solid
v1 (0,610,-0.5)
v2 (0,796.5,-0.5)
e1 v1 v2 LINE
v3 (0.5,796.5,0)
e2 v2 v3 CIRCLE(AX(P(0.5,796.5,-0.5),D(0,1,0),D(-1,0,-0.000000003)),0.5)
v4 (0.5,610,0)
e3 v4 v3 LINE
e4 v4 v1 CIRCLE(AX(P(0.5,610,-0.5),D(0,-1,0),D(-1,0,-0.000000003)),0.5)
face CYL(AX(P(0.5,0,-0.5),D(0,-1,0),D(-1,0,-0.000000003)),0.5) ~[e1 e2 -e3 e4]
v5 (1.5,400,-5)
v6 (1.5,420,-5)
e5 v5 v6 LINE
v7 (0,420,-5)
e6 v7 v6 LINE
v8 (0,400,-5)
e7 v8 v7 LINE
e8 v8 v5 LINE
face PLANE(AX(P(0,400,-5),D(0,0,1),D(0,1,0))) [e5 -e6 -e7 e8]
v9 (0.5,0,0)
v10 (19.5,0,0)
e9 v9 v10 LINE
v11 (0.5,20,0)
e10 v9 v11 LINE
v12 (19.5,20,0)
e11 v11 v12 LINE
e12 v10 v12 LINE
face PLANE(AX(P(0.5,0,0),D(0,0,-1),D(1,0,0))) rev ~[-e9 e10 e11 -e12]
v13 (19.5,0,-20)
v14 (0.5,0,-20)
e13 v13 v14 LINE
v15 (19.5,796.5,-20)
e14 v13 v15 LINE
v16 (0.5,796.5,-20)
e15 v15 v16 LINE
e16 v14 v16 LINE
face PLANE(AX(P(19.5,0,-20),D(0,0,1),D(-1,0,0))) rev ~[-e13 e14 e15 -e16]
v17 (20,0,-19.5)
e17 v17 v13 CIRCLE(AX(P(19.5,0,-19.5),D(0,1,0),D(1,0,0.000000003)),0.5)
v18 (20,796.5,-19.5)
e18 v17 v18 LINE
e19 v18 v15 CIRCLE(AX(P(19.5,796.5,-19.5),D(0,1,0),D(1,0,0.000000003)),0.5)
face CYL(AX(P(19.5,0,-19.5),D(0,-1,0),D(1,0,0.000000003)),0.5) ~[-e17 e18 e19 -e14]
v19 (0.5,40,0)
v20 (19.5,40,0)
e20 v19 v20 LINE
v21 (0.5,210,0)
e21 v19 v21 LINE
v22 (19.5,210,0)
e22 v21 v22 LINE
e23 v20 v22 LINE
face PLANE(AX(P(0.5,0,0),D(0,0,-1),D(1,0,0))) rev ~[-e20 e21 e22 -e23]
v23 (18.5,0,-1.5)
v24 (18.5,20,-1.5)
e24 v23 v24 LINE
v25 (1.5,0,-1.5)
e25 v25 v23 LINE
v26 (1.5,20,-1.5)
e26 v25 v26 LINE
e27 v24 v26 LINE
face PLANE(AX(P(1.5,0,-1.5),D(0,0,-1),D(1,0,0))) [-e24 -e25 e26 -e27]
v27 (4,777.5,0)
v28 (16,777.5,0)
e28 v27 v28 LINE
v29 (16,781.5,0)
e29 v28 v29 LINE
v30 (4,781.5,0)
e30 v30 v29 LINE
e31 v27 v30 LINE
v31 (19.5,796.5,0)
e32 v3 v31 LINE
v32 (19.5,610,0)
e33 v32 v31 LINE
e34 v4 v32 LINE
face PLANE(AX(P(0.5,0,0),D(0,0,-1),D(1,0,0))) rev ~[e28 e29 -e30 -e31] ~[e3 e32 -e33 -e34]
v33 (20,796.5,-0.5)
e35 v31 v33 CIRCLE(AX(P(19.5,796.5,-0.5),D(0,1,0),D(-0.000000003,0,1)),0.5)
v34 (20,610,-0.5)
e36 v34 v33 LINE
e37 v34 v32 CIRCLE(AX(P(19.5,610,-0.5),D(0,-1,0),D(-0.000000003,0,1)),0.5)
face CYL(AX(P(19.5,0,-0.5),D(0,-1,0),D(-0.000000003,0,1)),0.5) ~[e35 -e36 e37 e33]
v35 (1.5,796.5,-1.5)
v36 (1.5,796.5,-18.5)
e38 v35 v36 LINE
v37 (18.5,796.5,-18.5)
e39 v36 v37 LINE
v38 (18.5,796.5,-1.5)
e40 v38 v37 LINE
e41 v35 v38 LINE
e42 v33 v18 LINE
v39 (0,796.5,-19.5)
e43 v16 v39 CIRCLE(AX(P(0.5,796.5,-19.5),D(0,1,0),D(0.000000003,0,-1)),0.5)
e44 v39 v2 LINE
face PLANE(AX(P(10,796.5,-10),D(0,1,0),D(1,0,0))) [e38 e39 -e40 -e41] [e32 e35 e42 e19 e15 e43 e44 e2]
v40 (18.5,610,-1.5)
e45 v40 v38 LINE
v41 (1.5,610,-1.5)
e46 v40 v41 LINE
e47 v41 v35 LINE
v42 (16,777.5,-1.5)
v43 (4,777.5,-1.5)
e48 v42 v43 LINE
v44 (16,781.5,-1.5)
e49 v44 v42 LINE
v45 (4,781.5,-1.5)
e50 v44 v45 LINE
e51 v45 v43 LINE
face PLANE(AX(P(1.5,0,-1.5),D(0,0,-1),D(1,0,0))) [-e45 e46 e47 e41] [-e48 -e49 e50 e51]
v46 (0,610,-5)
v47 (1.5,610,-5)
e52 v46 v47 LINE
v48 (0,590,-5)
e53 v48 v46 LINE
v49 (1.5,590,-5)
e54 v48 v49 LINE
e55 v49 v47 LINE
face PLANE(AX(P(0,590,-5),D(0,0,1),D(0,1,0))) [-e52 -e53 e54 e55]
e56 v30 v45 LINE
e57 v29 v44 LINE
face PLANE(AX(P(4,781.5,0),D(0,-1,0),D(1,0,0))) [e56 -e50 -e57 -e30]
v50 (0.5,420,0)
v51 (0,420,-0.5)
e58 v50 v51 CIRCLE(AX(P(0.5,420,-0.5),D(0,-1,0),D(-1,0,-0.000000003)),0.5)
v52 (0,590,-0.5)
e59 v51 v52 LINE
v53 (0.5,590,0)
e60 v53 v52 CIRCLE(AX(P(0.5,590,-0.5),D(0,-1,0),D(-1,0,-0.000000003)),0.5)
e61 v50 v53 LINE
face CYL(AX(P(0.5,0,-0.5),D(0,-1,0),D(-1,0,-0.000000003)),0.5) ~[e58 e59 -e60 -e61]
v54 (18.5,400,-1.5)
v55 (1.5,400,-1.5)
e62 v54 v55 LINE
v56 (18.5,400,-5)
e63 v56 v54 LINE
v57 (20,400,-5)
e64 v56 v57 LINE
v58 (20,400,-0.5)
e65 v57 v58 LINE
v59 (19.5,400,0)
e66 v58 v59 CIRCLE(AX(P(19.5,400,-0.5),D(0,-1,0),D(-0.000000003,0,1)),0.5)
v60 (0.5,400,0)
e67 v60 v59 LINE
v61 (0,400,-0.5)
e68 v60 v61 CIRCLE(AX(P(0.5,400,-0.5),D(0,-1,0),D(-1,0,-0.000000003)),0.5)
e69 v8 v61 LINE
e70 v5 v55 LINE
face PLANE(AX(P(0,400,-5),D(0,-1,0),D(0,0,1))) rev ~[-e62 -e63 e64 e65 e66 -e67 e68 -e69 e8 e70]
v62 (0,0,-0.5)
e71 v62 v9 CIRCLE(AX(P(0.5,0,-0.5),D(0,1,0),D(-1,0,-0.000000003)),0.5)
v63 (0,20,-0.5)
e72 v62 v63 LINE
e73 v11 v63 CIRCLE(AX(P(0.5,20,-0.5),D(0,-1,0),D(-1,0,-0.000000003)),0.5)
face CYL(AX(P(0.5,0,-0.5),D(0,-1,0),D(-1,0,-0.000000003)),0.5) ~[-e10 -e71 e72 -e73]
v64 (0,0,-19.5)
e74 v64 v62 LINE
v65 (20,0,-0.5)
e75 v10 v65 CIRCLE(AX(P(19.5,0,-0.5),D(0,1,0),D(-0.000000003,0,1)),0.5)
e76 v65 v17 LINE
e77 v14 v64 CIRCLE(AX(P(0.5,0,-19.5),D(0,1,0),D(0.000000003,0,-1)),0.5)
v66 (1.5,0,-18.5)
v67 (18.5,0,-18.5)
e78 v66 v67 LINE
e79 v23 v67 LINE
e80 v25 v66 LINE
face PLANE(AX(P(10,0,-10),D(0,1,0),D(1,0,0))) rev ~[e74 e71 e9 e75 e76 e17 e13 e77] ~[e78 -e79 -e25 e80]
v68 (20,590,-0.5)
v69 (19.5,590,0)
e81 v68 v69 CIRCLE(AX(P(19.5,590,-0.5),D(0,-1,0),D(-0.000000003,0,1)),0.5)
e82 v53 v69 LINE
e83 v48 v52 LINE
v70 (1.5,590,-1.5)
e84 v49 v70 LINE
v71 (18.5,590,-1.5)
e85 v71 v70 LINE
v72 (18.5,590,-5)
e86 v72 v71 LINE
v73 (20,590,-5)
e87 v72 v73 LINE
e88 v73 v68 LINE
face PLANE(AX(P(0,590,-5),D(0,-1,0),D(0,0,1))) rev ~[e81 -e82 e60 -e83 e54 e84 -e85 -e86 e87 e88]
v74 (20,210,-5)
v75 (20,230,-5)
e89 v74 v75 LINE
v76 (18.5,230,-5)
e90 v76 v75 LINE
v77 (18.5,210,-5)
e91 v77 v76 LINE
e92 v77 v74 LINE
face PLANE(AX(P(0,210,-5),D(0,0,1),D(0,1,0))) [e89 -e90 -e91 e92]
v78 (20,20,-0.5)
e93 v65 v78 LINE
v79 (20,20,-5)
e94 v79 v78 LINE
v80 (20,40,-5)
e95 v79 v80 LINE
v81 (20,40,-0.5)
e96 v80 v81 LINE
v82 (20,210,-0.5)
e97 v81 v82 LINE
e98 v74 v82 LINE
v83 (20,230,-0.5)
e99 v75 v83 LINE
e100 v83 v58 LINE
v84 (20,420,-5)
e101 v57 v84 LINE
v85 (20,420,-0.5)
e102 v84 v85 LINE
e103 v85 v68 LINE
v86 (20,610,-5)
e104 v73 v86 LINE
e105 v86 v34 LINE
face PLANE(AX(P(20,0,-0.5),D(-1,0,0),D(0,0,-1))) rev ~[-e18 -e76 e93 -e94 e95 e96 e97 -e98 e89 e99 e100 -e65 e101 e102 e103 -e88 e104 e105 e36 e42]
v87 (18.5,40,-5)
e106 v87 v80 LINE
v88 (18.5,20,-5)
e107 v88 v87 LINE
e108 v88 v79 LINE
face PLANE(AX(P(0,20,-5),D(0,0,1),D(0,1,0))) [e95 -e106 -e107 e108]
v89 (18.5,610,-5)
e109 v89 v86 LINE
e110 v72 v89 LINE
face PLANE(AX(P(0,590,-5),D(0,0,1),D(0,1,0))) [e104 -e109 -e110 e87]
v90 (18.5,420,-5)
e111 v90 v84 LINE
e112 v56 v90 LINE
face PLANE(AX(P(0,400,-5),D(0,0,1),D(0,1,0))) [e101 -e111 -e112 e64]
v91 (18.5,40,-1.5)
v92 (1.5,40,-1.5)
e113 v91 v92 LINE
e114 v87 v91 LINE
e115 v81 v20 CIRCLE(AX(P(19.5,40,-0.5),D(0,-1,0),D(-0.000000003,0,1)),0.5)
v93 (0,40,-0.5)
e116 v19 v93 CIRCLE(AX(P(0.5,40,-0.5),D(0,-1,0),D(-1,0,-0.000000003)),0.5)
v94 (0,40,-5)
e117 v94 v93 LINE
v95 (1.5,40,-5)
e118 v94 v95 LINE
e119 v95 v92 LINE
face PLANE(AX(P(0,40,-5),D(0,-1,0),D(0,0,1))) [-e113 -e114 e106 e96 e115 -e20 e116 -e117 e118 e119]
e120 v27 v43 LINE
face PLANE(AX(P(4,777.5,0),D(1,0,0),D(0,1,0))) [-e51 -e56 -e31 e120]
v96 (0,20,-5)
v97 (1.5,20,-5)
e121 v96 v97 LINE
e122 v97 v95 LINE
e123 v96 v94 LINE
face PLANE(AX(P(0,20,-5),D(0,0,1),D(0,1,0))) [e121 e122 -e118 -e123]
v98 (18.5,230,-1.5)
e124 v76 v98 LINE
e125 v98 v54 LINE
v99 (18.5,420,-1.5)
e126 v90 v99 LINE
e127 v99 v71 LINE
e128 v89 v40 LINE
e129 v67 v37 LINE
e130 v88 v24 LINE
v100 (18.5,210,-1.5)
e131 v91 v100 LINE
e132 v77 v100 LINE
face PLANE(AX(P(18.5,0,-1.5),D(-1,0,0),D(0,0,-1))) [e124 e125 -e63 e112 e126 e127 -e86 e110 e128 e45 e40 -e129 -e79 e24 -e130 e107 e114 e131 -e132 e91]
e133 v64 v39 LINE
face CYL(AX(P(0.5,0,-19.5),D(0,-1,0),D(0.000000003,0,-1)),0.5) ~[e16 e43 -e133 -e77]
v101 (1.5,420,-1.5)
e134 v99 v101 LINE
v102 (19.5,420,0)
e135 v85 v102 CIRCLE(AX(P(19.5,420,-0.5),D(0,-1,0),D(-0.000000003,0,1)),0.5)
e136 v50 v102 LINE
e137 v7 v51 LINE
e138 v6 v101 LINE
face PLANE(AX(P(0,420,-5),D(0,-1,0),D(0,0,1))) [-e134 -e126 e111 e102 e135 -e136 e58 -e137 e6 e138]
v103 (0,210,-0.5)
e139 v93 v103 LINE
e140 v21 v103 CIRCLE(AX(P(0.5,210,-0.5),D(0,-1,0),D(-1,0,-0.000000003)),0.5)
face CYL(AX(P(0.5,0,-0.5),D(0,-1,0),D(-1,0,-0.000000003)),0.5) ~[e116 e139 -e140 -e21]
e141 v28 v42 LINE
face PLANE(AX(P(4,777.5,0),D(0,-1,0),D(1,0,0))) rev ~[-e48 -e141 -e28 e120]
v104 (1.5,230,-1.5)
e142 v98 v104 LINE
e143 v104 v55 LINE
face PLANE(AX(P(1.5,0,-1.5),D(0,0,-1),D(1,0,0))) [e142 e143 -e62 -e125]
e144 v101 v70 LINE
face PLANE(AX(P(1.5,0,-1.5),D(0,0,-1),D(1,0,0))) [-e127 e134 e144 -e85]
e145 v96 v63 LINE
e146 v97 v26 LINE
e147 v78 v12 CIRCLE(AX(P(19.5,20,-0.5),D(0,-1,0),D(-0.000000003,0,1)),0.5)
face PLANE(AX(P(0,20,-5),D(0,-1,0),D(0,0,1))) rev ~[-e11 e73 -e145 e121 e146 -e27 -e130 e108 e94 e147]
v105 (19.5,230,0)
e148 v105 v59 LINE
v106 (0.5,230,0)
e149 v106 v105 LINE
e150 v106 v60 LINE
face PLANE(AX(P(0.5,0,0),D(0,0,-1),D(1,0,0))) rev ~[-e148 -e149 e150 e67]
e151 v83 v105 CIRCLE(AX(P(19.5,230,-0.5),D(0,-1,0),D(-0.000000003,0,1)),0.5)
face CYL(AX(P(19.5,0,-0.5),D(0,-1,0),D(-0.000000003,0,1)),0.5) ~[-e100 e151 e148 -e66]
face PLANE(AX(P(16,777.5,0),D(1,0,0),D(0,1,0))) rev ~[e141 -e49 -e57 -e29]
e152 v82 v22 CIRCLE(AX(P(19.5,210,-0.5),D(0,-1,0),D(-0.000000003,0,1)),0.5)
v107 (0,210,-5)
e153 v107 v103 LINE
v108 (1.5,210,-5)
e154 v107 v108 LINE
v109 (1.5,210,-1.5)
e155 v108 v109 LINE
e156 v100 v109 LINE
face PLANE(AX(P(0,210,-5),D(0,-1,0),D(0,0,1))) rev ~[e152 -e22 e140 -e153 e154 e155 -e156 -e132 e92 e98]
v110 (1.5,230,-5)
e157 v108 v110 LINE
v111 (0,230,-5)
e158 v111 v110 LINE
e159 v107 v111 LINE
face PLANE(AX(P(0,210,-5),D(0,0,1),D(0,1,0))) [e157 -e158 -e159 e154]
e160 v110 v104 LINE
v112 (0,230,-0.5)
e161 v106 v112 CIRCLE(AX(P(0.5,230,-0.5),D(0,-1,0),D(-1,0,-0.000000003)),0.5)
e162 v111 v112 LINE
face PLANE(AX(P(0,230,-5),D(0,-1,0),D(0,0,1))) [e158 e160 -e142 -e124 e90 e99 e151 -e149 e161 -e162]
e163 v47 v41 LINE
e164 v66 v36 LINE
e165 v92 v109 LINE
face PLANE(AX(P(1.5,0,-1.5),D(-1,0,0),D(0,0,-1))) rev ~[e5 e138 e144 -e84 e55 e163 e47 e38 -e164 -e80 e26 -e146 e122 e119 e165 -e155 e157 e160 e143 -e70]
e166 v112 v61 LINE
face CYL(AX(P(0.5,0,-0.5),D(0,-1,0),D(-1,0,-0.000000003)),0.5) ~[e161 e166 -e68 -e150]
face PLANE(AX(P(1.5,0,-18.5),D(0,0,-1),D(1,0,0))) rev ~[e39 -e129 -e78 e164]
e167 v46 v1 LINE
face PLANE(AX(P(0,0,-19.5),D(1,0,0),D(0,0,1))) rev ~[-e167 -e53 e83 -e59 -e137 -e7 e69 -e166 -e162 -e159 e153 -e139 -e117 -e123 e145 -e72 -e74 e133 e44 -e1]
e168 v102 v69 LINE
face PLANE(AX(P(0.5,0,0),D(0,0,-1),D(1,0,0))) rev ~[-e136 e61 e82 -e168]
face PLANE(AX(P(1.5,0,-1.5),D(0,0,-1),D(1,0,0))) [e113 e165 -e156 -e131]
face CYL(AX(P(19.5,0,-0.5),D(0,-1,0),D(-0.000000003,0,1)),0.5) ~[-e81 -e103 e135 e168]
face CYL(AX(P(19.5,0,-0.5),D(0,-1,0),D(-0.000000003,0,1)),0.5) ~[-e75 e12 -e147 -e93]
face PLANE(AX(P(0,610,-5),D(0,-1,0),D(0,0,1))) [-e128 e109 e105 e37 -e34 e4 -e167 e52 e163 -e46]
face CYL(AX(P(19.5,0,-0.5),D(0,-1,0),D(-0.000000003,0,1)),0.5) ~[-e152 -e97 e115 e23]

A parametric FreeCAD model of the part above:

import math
import FreeCAD as App
import Part
import Sketcher
from FreeCAD import Vector
Q = App.Units.Quantity


def add_polygon(sketch, points):
    """Adds a closed chain of lines whose ends are joined by coincident constraints."""
    first, n = sketch.GeometryCount, len(points)
    for a, b in zip(points, points[1:] + points[:1]):
        sketch.addGeometry(Part.LineSegment(App.Vector(*a, 0), App.Vector(*b, 0)), False)
    for i in range(n):
        sketch.addConstraint(Sketcher.Constraint("Coincident", first + i, 2, first + (i + 1) % n, 1))

doc = App.newDocument("Part")
body = doc.addObject("PartDesign::Body", "Body")

sketch1 = body.newObject("Sketcher::SketchObject", "Sketch")
sketch1.AttachmentSupport = (doc.getObject("XZ_Plane"), [""])
sketch1.MapMode = "FlatFace"
sketch1.addGeometry(Part.LineSegment(Vector(0.5, 0, 0), Vector(19.5, 0, 0)), False)
sketch1.addGeometry(Part.ArcOfCircle(Part.Circle(Vector(19.5, -0.5, 0), Vector(0, 0, 1), 0.5), math.radians(0), math.radians(90)), False)
sketch1.addGeometry(Part.LineSegment(Vector(20, -0.5, 0), Vector(20, -19.5, 0)), False)
sketch1.addGeometry(Part.ArcOfCircle(Part.Circle(Vector(19.5, -19.5, 0), Vector(0, 0, 1), 0.5), math.radians(-90), math.radians(0)), False)
sketch1.addGeometry(Part.LineSegment(Vector(19.5, -20, 0), Vector(0.5, -20, 0)), False)
sketch1.addGeometry(Part.ArcOfCircle(Part.Circle(Vector(0.5, -19.5, 0), Vector(0, 0, 1), 0.5), math.radians(180), math.radians(270)), False)
sketch1.addGeometry(Part.LineSegment(Vector(0, -19.5, 0), Vector(0, -0.5, 0)), False)
sketch1.addGeometry(Part.ArcOfCircle(Part.Circle(Vector(0.5, -0.5, 0), Vector(0, 0, 1), 0.5), math.radians(90), math.radians(180)), False)
add_polygon(sketch1, [(18.5, -1.5), (1.5, -1.5), (1.5, -18.5), (18.5, -18.5)])
sketch1.addConstraint(Sketcher.Constraint("Tangent", 0, 2, 1, 2))
sketch1.addConstraint(Sketcher.Constraint("Tangent", 1, 1, 2, 1))
sketch1.addConstraint(Sketcher.Constraint("Tangent", 2, 2, 3, 2))
sketch1.addConstraint(Sketcher.Constraint("Tangent", 3, 1, 4, 1))
sketch1.addConstraint(Sketcher.Constraint("Tangent", 4, 2, 5, 2))
sketch1.addConstraint(Sketcher.Constraint("Tangent", 5, 1, 6, 1))
sketch1.addConstraint(Sketcher.Constraint("Tangent", 6, 2, 7, 2))
sketch1.addConstraint(Sketcher.Constraint("Tangent", 7, 1, 0, 1))
sketch1.addConstraint(Sketcher.Constraint("Horizontal", 0))
sketch1.addConstraint(Sketcher.Constraint("Vertical", 2))
sketch1.addConstraint(Sketcher.Constraint("Horizontal", 4))
sketch1.addConstraint(Sketcher.Constraint("Vertical", 6))
sketch1.addConstraint(Sketcher.Constraint("Horizontal", 8))
sketch1.addConstraint(Sketcher.Constraint("Vertical", 9))
sketch1.addConstraint(Sketcher.Constraint("Horizontal", 10))
sketch1.addConstraint(Sketcher.Constraint("Vertical", 11))
sketch1.addConstraint(Sketcher.Constraint("Equal", 1, 3))
sketch1.addConstraint(Sketcher.Constraint("Equal", 3, 5))
sketch1.addConstraint(Sketcher.Constraint("Equal", 5, 7))
sketch1.addConstraint(Sketcher.Constraint("PointOnObject", 0, 2, -1))
sketch1.addConstraint(Sketcher.Constraint("PointOnObject", 5, 1, -2))
sketch1.addConstraint(Sketcher.Constraint("Equal", 4, 2))
sketch1.addConstraint(Sketcher.Constraint("Equal", 10, 9))
sketch1.addConstraint(Sketcher.Constraint("Radius", 1, Q("0.5 mm")))
sketch1.addConstraint(Sketcher.Constraint("DistanceX", 0, 1, 0, 2, Q("19 mm")))
sketch1.addConstraint(Sketcher.Constraint("DistanceX", 8, 2, 8, 1, Q("17 mm")))
sketch1.addConstraint(Sketcher.Constraint("DistanceX", 7, 3, 8, 2, Q("1 mm")))
sketch1.addConstraint(Sketcher.Constraint("DistanceY", 8, 2, 7, 3, Q("1 mm")))
pad1 = body.newObject("PartDesign::Pad", "Pad")
pad1.Profile = sketch1
pad1.Length = 796.5
pad1.Reversed = True

sketch2 = body.newObject("Sketcher::SketchObject", "Sketch001")
sketch2.AttachmentSupport = (doc.getObject("XY_Plane"), [""])
sketch2.MapMode = "FlatFace"
add_polygon(sketch2, [(4, 781.5), (4, 777.5), (16, 777.5), (16, 781.5)])
sketch2.addConstraint(Sketcher.Constraint("Vertical", 0))
sketch2.addConstraint(Sketcher.Constraint("Horizontal", 1))
sketch2.addConstraint(Sketcher.Constraint("Vertical", 2))
sketch2.addConstraint(Sketcher.Constraint("Horizontal", 3))
sketch2.addConstraint(Sketcher.Constraint("DistanceX", 1, 1, 1, 2, Q("12 mm")))
sketch2.addConstraint(Sketcher.Constraint("DistanceY", 0, 2, 0, 1, Q("4 mm")))
sketch2.addConstraint(Sketcher.Constraint("DistanceX", -1, 1, 0, 2, Q("4 mm")))
sketch2.addConstraint(Sketcher.Constraint("DistanceY", -1, 1, 0, 2, Q("777.5 mm")))
pocket1 = body.newObject("PartDesign::Pocket", "Pocket")
pocket1.Profile = sketch2
pocket1.Length = 10

sketch3 = body.newObject("Sketcher::SketchObject", "Sketch002")
sketch3.AttachmentSupport = (doc.getObject("YZ_Plane"), [""])
sketch3.MapMode = "FlatFace"
add_polygon(sketch3, [(610, -5), (590, -5), (590, 0), (610, 0)])
add_polygon(sketch3, [(420, -5), (400, -5), (400, 0), (420, 0)])
add_polygon(sketch3, [(230, -5), (210, -5), (210, 0), (230, 0)])
add_polygon(sketch3, [(40, -5), (20, -5), (20, 0), (40, 0)])
sketch3.addConstraint(Sketcher.Constraint("Horizontal", 0))
sketch3.addConstraint(Sketcher.Constraint("Vertical", 1))
sketch3.addConstraint(Sketcher.Constraint("Horizontal", 2))
sketch3.addConstraint(Sketcher.Constraint("Vertical", 3))
sketch3.addConstraint(Sketcher.Constraint("Horizontal", 4))
sketch3.addConstraint(Sketcher.Constraint("Vertical", 5))
sketch3.addConstraint(Sketcher.Constraint("Horizontal", 6))
sketch3.addConstraint(Sketcher.Constraint("Vertical", 7))
sketch3.addConstraint(Sketcher.Constraint("Horizontal", 8))
sketch3.addConstraint(Sketcher.Constraint("Vertical", 9))
sketch3.addConstraint(Sketcher.Constraint("Horizontal", 10))
sketch3.addConstraint(Sketcher.Constraint("Vertical", 11))
sketch3.addConstraint(Sketcher.Constraint("Horizontal", 12))
sketch3.addConstraint(Sketcher.Constraint("Vertical", 13))
sketch3.addConstraint(Sketcher.Constraint("Horizontal", 14))
sketch3.addConstraint(Sketcher.Constraint("Vertical", 15))
sketch3.addConstraint(Sketcher.Constraint("PointOnObject", 1, 2, -1))
sketch3.addConstraint(Sketcher.Constraint("PointOnObject", 5, 2, -1))
sketch3.addConstraint(Sketcher.Constraint("PointOnObject", 9, 2, -1))
sketch3.addConstraint(Sketcher.Constraint("PointOnObject", 13, 2, -1))
sketch3.addConstraint(Sketcher.Constraint("Horizontal", 3, 2, 4, 2))
sketch3.addConstraint(Sketcher.Constraint("Horizontal", 7, 2, 8, 2))
sketch3.addConstraint(Sketcher.Constraint("Horizontal", 11, 2, 12, 2))
sketch3.addConstraint(Sketcher.Constraint("Equal", 2, 4))
sketch3.addConstraint(Sketcher.Constraint("Equal", 6, 8))
sketch3.addConstraint(Sketcher.Constraint("Equal", 10, 12))
sketch3.addConstraint(Sketcher.Constraint("DistanceX", 0, 2, 0, 1, Q("20 mm")))
sketch3.addConstraint(Sketcher.Constraint("DistanceY", 1, 1, 1, 2, Q("5 mm")))
sketch3.addConstraint(Sketcher.Constraint("DistanceX", -1, 1, 0, 2, Q("590 mm")))
sketch3.addConstraint(Sketcher.Constraint("DistanceX", -1, 1, 4, 2, Q("400 mm")))
sketch3.addConstraint(Sketcher.Constraint("DistanceX", -1, 1, 8, 2, Q("210 mm")))
sketch3.addConstraint(Sketcher.Constraint("DistanceX", -1, 1, 12, 2, Q("20 mm")))
pocket2 = body.newObject("PartDesign::Pocket", "Pocket001")
pocket2.Profile = sketch3
pocket2.Type = "ThroughAll"
pocket2.Reversed = True

doc.recompute()
